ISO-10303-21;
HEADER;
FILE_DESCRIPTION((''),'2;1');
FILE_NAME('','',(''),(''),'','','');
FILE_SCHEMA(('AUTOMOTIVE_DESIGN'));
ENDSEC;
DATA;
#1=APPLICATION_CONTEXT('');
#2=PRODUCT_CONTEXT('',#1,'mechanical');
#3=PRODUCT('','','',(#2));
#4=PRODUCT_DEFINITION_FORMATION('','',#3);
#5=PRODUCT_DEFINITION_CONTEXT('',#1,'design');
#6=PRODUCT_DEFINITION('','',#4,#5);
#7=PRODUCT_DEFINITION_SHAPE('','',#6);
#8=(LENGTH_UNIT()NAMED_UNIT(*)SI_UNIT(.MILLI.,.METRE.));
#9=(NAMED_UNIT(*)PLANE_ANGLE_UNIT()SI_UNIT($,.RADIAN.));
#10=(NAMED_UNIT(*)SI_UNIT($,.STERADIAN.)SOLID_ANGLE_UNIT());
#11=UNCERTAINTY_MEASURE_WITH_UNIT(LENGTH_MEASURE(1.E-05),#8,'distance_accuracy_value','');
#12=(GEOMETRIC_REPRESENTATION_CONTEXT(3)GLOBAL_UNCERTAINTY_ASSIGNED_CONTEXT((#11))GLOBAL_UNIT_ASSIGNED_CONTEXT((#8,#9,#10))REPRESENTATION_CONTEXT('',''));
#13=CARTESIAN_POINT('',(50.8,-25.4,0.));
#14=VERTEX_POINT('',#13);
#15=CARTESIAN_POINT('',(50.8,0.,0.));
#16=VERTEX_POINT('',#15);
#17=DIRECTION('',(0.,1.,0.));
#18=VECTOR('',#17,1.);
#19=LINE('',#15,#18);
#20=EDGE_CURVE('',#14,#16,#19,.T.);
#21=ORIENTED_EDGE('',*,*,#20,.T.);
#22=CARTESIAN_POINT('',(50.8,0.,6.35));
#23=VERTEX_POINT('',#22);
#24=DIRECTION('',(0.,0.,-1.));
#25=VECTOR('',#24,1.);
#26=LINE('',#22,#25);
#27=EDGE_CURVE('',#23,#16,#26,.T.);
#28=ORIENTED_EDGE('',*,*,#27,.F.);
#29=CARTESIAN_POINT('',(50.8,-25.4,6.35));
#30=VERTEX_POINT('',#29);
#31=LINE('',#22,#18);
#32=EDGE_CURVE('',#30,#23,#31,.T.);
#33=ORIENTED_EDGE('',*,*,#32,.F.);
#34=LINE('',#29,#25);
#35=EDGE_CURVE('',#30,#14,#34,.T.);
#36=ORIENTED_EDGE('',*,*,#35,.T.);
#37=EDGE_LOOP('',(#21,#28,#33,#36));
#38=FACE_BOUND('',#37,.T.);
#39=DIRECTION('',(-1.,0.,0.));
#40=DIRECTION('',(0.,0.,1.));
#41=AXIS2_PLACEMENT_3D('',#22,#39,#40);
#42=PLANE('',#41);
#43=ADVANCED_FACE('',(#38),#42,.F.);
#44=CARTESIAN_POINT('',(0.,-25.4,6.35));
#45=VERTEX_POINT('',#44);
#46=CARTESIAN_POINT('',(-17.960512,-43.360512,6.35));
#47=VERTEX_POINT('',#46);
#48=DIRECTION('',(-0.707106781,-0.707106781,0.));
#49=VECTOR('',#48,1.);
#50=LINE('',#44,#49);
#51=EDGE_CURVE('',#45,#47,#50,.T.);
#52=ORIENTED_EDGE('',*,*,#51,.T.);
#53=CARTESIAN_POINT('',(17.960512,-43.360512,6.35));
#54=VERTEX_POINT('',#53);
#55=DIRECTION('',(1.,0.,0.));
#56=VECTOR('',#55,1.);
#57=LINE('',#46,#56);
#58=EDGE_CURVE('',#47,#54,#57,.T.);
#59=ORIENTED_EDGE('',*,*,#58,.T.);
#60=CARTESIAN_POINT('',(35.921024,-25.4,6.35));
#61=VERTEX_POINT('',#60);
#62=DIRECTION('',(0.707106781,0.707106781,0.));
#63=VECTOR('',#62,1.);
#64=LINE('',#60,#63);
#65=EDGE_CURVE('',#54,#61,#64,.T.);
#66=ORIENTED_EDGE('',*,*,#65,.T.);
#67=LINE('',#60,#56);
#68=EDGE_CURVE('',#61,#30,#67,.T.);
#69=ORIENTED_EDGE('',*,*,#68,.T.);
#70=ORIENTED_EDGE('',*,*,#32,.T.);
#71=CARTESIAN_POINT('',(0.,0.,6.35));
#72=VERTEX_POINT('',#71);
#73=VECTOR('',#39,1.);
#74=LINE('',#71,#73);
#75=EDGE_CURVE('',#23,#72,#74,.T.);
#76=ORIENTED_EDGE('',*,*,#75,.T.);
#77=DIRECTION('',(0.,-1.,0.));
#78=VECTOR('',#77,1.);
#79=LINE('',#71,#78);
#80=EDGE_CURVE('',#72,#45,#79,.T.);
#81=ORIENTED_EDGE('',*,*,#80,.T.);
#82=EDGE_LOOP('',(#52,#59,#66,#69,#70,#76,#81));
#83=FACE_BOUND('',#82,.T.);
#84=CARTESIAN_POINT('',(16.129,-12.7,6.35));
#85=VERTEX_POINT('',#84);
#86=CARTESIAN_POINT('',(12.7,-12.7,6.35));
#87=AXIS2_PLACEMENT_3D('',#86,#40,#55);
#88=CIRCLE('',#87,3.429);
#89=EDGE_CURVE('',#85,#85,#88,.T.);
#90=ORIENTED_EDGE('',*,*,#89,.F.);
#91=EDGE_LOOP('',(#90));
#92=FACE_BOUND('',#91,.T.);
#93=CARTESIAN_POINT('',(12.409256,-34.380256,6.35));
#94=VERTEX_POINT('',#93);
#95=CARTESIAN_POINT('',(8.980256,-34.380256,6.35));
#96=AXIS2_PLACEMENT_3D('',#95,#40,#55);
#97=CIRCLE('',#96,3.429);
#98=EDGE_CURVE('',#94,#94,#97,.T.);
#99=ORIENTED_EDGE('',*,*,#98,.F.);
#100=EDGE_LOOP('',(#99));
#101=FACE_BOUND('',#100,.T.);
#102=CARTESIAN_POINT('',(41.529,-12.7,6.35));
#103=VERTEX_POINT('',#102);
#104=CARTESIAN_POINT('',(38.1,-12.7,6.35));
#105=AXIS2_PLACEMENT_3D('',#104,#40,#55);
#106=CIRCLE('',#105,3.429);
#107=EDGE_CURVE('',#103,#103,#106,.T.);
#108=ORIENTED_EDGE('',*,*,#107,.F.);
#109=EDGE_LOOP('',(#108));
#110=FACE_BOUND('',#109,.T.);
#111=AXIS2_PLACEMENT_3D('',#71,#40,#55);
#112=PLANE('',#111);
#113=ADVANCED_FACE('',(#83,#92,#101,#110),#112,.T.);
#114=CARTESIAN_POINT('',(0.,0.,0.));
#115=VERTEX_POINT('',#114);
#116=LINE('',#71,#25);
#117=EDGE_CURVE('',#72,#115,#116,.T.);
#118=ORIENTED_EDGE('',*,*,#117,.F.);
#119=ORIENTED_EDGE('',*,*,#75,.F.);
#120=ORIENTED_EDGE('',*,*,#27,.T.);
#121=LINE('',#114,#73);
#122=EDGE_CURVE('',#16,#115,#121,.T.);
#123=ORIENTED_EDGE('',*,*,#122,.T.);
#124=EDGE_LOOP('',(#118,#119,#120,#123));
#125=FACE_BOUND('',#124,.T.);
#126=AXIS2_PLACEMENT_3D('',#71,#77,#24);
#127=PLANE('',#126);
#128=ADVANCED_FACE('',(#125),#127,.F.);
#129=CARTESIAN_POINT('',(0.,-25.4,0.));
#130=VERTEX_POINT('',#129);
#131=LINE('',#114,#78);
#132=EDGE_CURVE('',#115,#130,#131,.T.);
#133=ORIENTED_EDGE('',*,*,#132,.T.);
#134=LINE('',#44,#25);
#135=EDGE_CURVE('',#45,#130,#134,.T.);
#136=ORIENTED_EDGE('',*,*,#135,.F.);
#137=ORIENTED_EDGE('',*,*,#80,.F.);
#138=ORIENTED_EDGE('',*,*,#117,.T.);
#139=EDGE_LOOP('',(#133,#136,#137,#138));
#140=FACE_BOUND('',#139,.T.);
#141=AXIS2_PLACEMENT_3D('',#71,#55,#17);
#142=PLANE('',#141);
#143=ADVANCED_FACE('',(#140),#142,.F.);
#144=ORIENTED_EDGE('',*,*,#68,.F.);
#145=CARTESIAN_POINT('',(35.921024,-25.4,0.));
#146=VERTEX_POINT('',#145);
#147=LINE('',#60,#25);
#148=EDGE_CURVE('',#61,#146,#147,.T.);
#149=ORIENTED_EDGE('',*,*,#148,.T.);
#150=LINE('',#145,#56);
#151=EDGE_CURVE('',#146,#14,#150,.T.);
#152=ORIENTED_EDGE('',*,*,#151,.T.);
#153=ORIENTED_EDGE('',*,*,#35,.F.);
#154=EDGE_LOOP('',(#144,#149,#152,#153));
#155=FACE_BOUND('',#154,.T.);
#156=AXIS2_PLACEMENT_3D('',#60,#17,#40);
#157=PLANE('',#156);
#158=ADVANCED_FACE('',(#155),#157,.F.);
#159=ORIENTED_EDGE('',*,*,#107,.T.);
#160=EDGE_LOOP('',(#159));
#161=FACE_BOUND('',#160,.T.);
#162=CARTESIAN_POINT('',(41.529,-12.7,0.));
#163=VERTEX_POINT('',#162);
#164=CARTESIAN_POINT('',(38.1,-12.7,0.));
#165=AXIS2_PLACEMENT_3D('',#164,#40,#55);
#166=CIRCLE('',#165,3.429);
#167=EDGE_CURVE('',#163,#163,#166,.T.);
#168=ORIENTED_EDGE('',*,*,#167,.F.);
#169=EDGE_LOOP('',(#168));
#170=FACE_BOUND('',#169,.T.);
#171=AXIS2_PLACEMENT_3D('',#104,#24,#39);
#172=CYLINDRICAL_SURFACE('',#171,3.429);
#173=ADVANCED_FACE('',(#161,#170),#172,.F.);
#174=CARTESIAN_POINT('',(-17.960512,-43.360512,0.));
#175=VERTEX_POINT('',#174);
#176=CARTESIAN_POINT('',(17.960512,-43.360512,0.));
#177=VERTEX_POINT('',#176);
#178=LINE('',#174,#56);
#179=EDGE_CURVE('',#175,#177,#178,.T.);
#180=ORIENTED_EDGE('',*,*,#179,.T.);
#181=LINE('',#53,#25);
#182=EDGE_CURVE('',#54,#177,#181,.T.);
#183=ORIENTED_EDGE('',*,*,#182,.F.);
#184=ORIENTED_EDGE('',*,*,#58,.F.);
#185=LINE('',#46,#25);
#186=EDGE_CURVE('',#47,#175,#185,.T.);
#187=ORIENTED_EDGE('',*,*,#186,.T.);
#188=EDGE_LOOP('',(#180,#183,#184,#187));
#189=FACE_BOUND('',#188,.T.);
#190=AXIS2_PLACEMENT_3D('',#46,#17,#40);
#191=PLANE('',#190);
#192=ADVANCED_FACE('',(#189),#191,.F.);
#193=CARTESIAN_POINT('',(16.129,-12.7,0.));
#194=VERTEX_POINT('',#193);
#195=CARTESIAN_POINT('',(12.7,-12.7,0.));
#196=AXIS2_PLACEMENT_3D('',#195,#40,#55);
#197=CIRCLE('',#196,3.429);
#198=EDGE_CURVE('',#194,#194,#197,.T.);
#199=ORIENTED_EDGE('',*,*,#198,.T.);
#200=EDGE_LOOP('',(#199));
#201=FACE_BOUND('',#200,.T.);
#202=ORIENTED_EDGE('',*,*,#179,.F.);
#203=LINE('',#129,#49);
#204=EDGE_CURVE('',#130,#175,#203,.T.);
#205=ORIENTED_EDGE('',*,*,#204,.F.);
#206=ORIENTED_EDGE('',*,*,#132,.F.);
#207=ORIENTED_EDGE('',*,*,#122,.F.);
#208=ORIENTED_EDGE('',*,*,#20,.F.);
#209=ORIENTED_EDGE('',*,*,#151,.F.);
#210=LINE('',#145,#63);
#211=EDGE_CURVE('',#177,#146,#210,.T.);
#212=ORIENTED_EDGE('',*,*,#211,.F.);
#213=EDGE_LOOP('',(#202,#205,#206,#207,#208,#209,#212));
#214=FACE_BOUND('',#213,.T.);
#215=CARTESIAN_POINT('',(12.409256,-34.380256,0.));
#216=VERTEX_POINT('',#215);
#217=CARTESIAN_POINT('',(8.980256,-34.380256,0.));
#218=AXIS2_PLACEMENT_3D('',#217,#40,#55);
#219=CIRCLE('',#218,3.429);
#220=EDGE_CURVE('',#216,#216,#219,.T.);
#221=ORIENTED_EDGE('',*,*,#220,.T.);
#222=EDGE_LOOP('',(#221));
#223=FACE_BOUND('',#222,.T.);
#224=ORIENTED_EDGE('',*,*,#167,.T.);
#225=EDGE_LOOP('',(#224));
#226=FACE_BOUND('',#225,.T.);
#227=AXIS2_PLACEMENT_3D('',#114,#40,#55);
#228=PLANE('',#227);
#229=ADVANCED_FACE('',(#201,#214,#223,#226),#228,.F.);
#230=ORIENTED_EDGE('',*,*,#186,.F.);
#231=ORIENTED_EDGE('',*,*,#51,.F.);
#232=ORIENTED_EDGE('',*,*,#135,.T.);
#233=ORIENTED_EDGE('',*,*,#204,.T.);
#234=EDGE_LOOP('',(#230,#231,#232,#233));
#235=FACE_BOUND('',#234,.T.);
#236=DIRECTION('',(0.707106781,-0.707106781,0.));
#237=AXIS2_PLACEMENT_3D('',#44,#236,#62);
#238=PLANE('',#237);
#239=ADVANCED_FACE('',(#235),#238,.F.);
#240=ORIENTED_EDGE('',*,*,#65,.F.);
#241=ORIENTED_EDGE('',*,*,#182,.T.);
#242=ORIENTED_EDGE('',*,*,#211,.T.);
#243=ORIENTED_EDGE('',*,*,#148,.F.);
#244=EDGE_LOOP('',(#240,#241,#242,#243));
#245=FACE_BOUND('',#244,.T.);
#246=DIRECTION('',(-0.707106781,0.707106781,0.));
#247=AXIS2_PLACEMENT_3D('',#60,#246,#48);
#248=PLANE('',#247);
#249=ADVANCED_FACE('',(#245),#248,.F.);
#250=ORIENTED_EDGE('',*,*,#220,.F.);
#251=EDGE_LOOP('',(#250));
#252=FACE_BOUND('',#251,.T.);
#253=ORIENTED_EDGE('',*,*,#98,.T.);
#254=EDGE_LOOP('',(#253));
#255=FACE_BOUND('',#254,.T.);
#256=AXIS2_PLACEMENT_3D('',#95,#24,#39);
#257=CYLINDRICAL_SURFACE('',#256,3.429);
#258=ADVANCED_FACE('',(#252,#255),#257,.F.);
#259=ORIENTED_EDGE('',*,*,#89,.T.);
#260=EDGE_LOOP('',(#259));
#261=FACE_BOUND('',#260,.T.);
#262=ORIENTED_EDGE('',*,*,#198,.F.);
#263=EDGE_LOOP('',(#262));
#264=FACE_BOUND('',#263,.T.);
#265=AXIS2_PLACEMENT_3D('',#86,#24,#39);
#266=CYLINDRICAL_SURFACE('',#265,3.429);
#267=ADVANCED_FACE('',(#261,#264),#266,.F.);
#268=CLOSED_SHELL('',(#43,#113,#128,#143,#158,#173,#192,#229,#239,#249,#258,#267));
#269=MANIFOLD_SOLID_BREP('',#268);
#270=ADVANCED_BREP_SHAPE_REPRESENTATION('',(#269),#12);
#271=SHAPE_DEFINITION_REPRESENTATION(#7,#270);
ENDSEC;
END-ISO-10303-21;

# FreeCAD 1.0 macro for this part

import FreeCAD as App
import Part
import Sketcher
from FreeCAD import Vector
Q = App.Units.Quantity


def add_polygon(sketch, points):
    """Adds a closed chain of lines whose ends are joined by coincident constraints."""
    first, n = sketch.GeometryCount, len(points)
    for a, b in zip(points, points[1:] + points[:1]):
        sketch.addGeometry(Part.LineSegment(App.Vector(*a, 0), App.Vector(*b, 0)), False)
    for i in range(n):
        sketch.addConstraint(Sketcher.Constraint("Coincident", first + i, 2, first + (i + 1) % n, 1))

doc = App.newDocument("Part")
body = doc.addObject("PartDesign::Body", "Body")

# Sketch on XY plane
sketch1 = doc.addObject("Sketcher::SketchObject", "Sketch")
body.addObject(sketch1)
sketch1.AttachmentSupport = (doc.XY_Plane, [""])
sketch1.MapMode = "FlatFace"
add_polygon(sketch1, [(17.960512, -43.360512), (35.921024, -25.4), (50.8, -25.4), (50.8, 0), (0, 0), (0, -25.4), (-17.960512, -43.360512)])  # lines 0-6
sketch1.addGeometry(Part.Circle(Vector(8.980256, -34.380256, 0), Vector(0, 0, 1), 3.429), False)  # 7
sketch1.addGeometry(Part.Circle(Vector(38.1, -12.7, 0), Vector(0, 0, 1), 3.429), False)  # 8
sketch1.addGeometry(Part.Circle(Vector(12.7, -12.7, 0), Vector(0, 0, 1), 3.429), False)  # 9
sketch1.addConstraint([
    Sketcher.Constraint("Horizontal", 1),
    Sketcher.Constraint("Vertical", 2),
    Sketcher.Constraint("Horizontal", 3),
    Sketcher.Constraint("Vertical", 4),
    Sketcher.Constraint("Horizontal", 6),
    Sketcher.Constraint("Coincident", 3, 2, -1, 1),
    Sketcher.Constraint("Equal", 7, 8),
    Sketcher.Constraint("Equal", 8, 9),
    Sketcher.Constraint("Parallel", 0, 5),
    Sketcher.Constraint("Horizontal", 8, 3, 9, 3),
    Sketcher.Constraint("Horizontal", 1, 2, 4, 2),
    Sketcher.Constraint("Diameter", 7, Q("0.27 in")),
    Sketcher.Constraint("DistanceX", 3, 2, 3, 1, Q("2 in")),
    Sketcher.Constraint("DistanceY", 2, 1, 2, 2, Q("1 in")),
    Sketcher.Constraint("Distance", 0, Q("1 in")),
    Sketcher.Constraint("Angle", 0, Q("45 deg")),
    Sketcher.Constraint("DistanceX", 9, 3, 8, 3, Q("1 in")),
    Sketcher.Constraint("DistanceX", -1, 1, 8, 3, Q("1.5 in")),
    Sketcher.Constraint("DistanceY", 8, 3, -1, 1, Q("0.5 in")),
    Sketcher.Constraint("DistanceX", 1, 1, 1, 2, Q("14.878976 mm")),
    Sketcher.Constraint("DistanceX", 7, 3, 0, 2, Q("26.940768 mm")),
    Sketcher.Constraint("DistanceY", 7, 3, -1, 1, Q("34.380256 mm")),
])
pad1 = doc.addObject("PartDesign::Pad", "Pad")
body.addObject(pad1)
pad1.Profile = sketch1
pad1.Length = Q("0.25 in")

doc.recompute()
